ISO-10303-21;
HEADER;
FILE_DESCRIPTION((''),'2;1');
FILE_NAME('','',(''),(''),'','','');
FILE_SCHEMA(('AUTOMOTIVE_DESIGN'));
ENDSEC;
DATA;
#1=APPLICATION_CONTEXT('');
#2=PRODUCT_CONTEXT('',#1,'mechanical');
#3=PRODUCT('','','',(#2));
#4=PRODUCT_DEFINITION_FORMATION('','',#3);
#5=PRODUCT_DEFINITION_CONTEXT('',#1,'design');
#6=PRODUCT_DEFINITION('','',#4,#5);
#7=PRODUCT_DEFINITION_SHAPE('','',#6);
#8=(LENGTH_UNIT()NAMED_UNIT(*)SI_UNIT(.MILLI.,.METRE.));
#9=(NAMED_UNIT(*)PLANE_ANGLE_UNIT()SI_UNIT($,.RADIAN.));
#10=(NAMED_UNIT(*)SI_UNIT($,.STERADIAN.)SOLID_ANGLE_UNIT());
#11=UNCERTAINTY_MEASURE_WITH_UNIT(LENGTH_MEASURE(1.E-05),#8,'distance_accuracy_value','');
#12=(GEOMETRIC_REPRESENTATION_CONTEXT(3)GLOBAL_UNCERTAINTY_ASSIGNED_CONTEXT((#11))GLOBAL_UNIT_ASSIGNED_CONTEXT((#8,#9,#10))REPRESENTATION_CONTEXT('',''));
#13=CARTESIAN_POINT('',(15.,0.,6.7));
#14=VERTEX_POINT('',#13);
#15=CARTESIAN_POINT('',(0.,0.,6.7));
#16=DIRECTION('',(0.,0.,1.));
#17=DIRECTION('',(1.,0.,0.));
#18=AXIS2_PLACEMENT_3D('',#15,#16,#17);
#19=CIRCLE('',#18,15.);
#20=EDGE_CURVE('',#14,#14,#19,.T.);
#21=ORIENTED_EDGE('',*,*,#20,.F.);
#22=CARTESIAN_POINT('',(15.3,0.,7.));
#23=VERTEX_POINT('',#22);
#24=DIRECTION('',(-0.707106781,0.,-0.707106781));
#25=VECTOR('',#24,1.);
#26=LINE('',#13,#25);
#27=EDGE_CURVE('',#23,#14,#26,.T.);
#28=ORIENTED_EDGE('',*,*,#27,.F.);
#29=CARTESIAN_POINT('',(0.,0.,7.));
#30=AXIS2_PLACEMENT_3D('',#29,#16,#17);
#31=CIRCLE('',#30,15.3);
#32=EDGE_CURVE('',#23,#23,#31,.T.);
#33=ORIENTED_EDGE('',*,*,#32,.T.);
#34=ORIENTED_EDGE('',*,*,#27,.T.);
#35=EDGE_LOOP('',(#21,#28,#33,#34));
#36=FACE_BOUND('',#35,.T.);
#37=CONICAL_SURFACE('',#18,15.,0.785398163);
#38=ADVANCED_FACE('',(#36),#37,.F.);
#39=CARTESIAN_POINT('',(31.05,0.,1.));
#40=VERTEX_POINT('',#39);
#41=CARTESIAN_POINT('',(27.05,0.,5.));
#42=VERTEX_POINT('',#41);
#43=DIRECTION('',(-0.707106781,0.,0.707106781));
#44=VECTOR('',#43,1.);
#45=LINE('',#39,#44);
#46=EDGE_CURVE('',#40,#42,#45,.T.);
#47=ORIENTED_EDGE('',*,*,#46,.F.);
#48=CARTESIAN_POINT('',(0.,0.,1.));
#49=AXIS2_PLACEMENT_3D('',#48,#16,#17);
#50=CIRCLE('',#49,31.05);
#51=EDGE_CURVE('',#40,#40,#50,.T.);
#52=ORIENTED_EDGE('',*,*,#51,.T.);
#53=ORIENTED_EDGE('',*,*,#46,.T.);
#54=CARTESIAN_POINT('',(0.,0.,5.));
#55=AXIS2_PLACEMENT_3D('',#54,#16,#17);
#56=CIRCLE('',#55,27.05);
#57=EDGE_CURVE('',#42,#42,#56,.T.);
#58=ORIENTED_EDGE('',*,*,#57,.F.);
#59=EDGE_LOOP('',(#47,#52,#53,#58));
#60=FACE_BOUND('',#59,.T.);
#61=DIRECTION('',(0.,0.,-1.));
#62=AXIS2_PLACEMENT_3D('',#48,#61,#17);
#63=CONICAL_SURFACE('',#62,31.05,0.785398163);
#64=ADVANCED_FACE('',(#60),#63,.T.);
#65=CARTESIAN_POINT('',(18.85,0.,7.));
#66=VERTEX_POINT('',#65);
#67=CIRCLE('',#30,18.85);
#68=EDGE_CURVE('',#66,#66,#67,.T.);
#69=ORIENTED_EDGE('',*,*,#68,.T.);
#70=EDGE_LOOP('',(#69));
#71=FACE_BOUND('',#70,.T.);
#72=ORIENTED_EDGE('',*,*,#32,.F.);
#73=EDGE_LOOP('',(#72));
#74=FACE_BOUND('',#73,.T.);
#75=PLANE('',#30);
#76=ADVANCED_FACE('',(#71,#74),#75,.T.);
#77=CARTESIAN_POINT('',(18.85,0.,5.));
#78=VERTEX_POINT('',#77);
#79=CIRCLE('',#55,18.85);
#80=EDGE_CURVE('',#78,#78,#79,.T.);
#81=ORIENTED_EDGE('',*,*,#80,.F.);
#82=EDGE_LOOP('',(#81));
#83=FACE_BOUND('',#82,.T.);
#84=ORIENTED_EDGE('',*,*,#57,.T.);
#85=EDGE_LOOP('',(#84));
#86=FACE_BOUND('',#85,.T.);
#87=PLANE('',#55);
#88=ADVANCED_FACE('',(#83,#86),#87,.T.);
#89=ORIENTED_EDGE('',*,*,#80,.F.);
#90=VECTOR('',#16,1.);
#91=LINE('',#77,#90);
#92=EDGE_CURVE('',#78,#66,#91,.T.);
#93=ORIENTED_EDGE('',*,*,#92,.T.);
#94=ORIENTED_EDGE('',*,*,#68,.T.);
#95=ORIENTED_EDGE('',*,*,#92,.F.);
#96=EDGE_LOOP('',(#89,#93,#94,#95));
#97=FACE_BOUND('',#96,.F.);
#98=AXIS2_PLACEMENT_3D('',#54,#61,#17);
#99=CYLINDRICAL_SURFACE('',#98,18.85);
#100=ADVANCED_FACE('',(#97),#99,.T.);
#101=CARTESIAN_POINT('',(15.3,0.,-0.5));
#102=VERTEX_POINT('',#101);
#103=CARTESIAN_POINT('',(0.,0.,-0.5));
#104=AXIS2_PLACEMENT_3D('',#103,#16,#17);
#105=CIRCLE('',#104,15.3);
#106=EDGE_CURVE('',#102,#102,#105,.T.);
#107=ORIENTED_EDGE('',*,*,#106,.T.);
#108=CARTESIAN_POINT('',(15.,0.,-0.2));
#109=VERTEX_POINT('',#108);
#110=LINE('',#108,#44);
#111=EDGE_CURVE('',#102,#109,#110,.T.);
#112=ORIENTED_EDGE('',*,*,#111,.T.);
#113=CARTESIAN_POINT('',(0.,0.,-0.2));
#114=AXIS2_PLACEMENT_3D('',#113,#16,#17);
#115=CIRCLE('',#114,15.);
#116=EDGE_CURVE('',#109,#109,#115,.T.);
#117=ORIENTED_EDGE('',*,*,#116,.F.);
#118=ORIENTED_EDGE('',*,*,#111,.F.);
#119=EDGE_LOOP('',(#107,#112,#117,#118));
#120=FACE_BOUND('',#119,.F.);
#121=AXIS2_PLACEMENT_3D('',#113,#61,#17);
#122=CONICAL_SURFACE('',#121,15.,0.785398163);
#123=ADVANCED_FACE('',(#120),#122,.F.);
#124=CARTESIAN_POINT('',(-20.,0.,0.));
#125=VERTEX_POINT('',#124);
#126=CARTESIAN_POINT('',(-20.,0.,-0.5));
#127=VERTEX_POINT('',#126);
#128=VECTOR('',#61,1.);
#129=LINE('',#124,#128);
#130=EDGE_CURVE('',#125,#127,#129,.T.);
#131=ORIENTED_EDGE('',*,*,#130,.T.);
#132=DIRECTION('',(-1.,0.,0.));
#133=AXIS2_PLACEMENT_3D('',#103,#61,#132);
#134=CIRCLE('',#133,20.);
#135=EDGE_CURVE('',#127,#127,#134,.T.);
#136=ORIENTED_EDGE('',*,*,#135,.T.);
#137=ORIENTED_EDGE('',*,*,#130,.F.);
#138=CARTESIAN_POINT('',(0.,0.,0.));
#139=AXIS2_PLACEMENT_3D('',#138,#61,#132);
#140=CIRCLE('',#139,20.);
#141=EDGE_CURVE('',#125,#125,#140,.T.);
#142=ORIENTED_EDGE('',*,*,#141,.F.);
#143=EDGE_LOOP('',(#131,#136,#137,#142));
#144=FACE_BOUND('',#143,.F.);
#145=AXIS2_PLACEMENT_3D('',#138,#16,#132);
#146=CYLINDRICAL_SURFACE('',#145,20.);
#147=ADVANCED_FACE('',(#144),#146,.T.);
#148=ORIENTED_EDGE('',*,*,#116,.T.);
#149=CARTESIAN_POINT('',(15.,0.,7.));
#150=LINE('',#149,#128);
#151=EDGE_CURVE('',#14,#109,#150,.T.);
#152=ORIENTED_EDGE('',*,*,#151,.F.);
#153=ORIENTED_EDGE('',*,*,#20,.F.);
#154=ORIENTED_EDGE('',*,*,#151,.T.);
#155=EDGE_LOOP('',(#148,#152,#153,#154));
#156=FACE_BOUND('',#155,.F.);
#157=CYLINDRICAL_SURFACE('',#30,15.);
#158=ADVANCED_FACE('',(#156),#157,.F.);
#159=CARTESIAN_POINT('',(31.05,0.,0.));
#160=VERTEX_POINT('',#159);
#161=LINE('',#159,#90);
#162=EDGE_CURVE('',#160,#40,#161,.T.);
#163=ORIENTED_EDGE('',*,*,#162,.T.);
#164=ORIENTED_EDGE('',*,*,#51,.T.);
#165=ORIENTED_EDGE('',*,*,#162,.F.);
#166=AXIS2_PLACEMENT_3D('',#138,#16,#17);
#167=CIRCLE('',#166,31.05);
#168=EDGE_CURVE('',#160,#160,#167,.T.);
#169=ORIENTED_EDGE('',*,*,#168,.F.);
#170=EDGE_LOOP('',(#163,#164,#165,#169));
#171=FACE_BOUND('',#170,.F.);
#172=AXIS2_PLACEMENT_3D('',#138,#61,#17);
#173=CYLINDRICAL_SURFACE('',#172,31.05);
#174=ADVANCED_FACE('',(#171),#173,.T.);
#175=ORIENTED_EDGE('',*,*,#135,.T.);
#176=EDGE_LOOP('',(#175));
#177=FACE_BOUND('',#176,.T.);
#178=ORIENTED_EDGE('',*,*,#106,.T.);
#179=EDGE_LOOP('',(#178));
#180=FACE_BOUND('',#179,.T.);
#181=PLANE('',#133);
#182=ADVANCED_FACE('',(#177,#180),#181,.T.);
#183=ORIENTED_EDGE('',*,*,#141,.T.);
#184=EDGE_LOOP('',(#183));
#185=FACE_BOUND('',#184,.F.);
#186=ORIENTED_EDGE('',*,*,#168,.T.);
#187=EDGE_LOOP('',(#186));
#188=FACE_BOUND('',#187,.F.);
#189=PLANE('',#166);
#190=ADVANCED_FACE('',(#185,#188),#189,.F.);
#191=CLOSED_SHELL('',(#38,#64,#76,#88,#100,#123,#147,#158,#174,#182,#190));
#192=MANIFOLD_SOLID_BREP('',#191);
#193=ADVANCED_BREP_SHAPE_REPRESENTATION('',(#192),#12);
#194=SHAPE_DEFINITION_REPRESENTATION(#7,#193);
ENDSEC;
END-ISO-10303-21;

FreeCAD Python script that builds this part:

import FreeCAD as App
import Part
import Sketcher
from FreeCAD import Vector
Q = App.Units.Quantity


def edges_at(feature, points):
    """Names of the edges that pass closest to the given points."""
    edges = feature.Shape.Edges
    near = lambda p: min(range(len(edges)), key=lambda i: edges[i].distToShape(Part.Vertex(*p))[0])
    return sorted({f"Edge{near(p) + 1}" for p in points})

doc = App.newDocument("Part")
body = doc.addObject("PartDesign::Body", "Body")

# Sketch on XY plane
sketch1 = body.newObject("Sketcher::SketchObject", "Sketch")
sketch1.AttachmentSupport = (doc.getObject("XY_Plane"), [""])
sketch1.MapMode = "FlatFace"
sketch1.addGeometry(Part.Circle(Vector(0, 0, 0), Vector(0, 0, 1), 31.05), False)
sketch1.addConstraint([
    Sketcher.Constraint("Coincident", 0, 3, -1, 1),
    Sketcher.Constraint("Diameter", 0, Q("62.1 mm")),
])
pad1 = body.newObject("PartDesign::Pad", "Pad")
pad1.Profile = sketch1
pad1.Length = 5

# Sketch on XY plane
sketch2 = body.newObject("Sketcher::SketchObject", "Sketch001")
sketch2.AttachmentSupport = (doc.getObject("XY_Plane"), [""])
sketch2.MapMode = "FlatFace"
sketch2.AttachmentOffset = App.Placement(Vector(0, 0, 5), App.Rotation())
sketch2.addGeometry(Part.Circle(Vector(0, 0, 0), Vector(0, 0, 1), 18.85), False)
sketch2.addConstraint([
    Sketcher.Constraint("Coincident", 0, 3, -1, 1),
    Sketcher.Constraint("Diameter", 0, Q("37.7 mm")),
])
pad2 = body.newObject("PartDesign::Pad", "Pad001")
pad2.Profile = sketch2
pad2.Length = 2

# Sketch on XY plane
sketch3 = body.newObject("Sketcher::SketchObject", "Sketch002")
sketch3.AttachmentSupport = (doc.getObject("XY_Plane"), [""])
sketch3.MapMode = "FlatFace"
sketch3.addGeometry(Part.Circle(Vector(0, 0, 0), Vector(0, 0, 1), 20), False)
sketch3.addConstraint([
    Sketcher.Constraint("Coincident", 0, 3, -1, 1),
    Sketcher.Constraint("Diameter", 0, Q("40 mm")),
])
pad3 = body.newObject("PartDesign::Pad", "Pad002")
pad3.Profile = sketch3
pad3.Length = 0.5
pad3.Reversed = True

# Sketch on XY plane
sketch4 = body.newObject("Sketcher::SketchObject", "Sketch003")
sketch4.AttachmentSupport = (doc.getObject("XY_Plane"), [""])
sketch4.MapMode = "FlatFace"
sketch4.AttachmentOffset = App.Placement(Vector(0, 0, 7), App.Rotation())
sketch4.addGeometry(Part.Circle(Vector(0, 0, 0), Vector(0, 0, 1), 15), False)
sketch4.addConstraint([
    Sketcher.Constraint("Coincident", 0, 3, -1, 1),
    Sketcher.Constraint("Diameter", 0, Q("30 mm")),
])
pocket1 = body.newObject("PartDesign::Pocket", "Pocket")
pocket1.Profile = sketch4
pocket1.Length = 7.5
doc.recompute()

chamfer = body.newObject("PartDesign::Chamfer", "Chamfer")
chamfer.Base = (pocket1, edges_at(pocket1, [(-31.05, 0, 5)]))
chamfer.Size = 4
doc.recompute()

chamfer2 = body.newObject("PartDesign::Chamfer", "Chamfer001")
chamfer2.Base = (chamfer, edges_at(chamfer, [(-15, 0, 7), (-15, 0, -0.5)]))
chamfer2.Size = 0.3

doc.recompute()
